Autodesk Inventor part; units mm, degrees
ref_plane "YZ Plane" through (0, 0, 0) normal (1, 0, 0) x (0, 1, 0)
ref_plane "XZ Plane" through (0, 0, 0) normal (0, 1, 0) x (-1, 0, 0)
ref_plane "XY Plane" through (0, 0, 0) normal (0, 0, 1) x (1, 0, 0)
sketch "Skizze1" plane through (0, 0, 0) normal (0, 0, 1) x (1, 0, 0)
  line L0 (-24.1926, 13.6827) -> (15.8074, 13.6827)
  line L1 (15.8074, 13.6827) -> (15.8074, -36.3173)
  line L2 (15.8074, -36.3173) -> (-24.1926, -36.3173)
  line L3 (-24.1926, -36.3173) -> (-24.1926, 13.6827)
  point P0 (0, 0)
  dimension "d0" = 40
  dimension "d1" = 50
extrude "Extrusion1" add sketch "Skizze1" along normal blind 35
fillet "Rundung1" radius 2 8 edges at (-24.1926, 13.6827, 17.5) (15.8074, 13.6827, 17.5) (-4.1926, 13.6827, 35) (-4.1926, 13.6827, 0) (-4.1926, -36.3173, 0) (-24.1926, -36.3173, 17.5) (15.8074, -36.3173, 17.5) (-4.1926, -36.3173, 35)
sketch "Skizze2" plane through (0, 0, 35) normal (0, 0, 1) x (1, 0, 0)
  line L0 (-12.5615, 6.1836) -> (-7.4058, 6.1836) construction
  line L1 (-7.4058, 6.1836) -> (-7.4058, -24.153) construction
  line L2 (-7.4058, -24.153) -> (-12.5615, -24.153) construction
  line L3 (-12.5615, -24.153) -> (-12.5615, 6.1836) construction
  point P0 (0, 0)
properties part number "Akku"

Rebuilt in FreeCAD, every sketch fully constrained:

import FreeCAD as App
import Part
import Sketcher

V = App.Vector
Q = App.Units.Quantity


def edges_at(feature, points):
    """Names of the edges that pass closest to the given points."""
    edges = feature.Shape.Edges
    near = lambda p: min(range(len(edges)), key=lambda i: edges[i].distToShape(Part.Vertex(*p))[0])
    return sorted({f"Edge{near(p) + 1}" for p in points})


def add_polygon(sketch, points):
    """Adds a closed chain of lines whose ends are joined by coincident constraints."""
    first, n = sketch.GeometryCount, len(points)
    for a, b in zip(points, points[1:] + points[:1]):
        sketch.addGeometry(Part.LineSegment(App.Vector(*a, 0), App.Vector(*b, 0)), False)
    for i in range(n):
        sketch.addConstraint(Sketcher.Constraint("Coincident", first + i, 2, first + (i + 1) % n, 1))

doc = App.newDocument("Part")
body = doc.addObject("PartDesign::Body", "Body")

# Sketch on XY plane
sketch1 = body.newObject("Sketcher::SketchObject", "Sketch")
sketch1.AttachmentSupport = (doc.getObject("XY_Plane"), [""])
sketch1.MapMode = "FlatFace"
add_polygon(sketch1, [(15.8074, 13.6827), (-24.1926, 13.6827), (-24.1926, -36.3173), (15.8074, -36.3173)])  # lines 0-3
sketch1.addConstraint([
    Sketcher.Constraint("Horizontal", 0),
    Sketcher.Constraint("Vertical", 1),
    Sketcher.Constraint("Horizontal", 2),
    Sketcher.Constraint("Vertical", 3),
    Sketcher.Constraint("DistanceX", 0, 2, 0, 1, Q("40 mm")),
    Sketcher.Constraint("DistanceY", 1, 2, 1, 1, Q("50 mm")),
    Sketcher.Constraint("DistanceX", 0, 2, -1, 1, Q("24.1926 mm")),
    Sketcher.Constraint("DistanceY", -1, 1, 0, 2, Q("13.6827 mm")),
])
pad1 = body.newObject("PartDesign::Pad", "Pad")
pad1.Profile = sketch1
pad1.Length = 35
doc.recompute()

fillet = body.newObject("PartDesign::Fillet", "Fillet")
fillet.Base = (pad1, edges_at(pad1, [
    (-24.193, 13.683, 17.5),
    (15.807, 13.683, 17.5),
    (-4.193, 13.683, 35),
    (-4.193, 13.683, 0),
    (-4.193, -36.317, 0),
    (-24.193, -36.317, 17.5),
    (15.807, -36.317, 17.5),
    (-4.193, -36.317, 35),
]))
fillet.Radius = 2

doc.recompute()
